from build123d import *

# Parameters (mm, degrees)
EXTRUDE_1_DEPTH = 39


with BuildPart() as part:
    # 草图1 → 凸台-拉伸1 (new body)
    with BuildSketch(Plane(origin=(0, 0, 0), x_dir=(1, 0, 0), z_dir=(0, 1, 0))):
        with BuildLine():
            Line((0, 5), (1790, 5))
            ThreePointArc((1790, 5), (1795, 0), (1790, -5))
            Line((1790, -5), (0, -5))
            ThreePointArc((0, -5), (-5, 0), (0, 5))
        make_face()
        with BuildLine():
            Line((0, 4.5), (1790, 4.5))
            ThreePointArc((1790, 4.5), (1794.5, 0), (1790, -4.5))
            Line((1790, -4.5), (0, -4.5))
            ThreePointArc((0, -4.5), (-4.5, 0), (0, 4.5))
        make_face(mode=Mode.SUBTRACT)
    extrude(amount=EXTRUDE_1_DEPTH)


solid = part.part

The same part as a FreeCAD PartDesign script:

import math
import FreeCAD as App
import Part
import Sketcher

V = App.Vector

doc = App.newDocument("Part")
body = doc.addObject("PartDesign::Body", "Body")

sketch1 = body.newObject("Sketcher::SketchObject", "Sketch")
sketch1.AttachmentSupport = (doc.getObject("XZ_Plane"), [""])
sketch1.MapMode = "FlatFace"
sketch1.addGeometry([
    Part.LineSegment(V(1790, -5, 0), V(0, -5, 0)),
    Part.ArcOfCircle(Part.Circle(V(0, 0, 0), V(0, 0, 1), 5), math.radians(90), math.radians(270)),
    Part.LineSegment(V(0, 5, 0), V(1790, 5, 0)),
    Part.ArcOfCircle(Part.Circle(V(1790, 0, 0), V(0, 0, 1), 5), math.radians(-90), math.radians(90)),
    Part.LineSegment(V(0, -4.5, 0), V(1790, -4.5, 0)),
    Part.ArcOfCircle(Part.Circle(V(1790, 0, 0), V(0, 0, 1), 4.5), math.radians(-90), math.radians(90)),
    Part.LineSegment(V(1790, 4.5, 0), V(0, 4.5, 0)),
    Part.ArcOfCircle(Part.Circle(V(0, 0, 0), V(0, 0, 1), 4.5), math.radians(90), math.radians(270)),
], False)
sketch1.addConstraint([
    Sketcher.Constraint("Tangent", 0, 2, 1, 2),
    Sketcher.Constraint("Tangent", 1, 1, 2, 1),
    Sketcher.Constraint("Tangent", 2, 2, 3, 2),
    Sketcher.Constraint("Tangent", 3, 1, 0, 1),
    Sketcher.Constraint("Tangent", 4, 2, 5, 1),
    Sketcher.Constraint("Tangent", 5, 2, 6, 1),
    Sketcher.Constraint("Tangent", 6, 2, 7, 1),
    Sketcher.Constraint("Tangent", 7, 2, 4, 1),
    Sketcher.Constraint("Horizontal", 0),
    Sketcher.Constraint("Horizontal", 2),
    Sketcher.Constraint("Horizontal", 4),
    Sketcher.Constraint("Horizontal", 6),
    Sketcher.Constraint("Coincident", 1, 3, -1, 1),
    Sketcher.Constraint("Coincident", 7, 3, -1, 1),
    Sketcher.Constraint("Vertical", 5, 3, 2, 2),
    Sketcher.Constraint("Radius", 1, 5.0),
    Sketcher.Constraint("Radius", 5, 4.5),
    Sketcher.Constraint("DistanceX", 0, 2, 0, 1, 1790.0),
])
pad1 = body.newObject("PartDesign::Pad", "Pad")
pad1.Profile = sketch1
pad1.Length = 39
pad1.Reversed = True

doc.recompute()
